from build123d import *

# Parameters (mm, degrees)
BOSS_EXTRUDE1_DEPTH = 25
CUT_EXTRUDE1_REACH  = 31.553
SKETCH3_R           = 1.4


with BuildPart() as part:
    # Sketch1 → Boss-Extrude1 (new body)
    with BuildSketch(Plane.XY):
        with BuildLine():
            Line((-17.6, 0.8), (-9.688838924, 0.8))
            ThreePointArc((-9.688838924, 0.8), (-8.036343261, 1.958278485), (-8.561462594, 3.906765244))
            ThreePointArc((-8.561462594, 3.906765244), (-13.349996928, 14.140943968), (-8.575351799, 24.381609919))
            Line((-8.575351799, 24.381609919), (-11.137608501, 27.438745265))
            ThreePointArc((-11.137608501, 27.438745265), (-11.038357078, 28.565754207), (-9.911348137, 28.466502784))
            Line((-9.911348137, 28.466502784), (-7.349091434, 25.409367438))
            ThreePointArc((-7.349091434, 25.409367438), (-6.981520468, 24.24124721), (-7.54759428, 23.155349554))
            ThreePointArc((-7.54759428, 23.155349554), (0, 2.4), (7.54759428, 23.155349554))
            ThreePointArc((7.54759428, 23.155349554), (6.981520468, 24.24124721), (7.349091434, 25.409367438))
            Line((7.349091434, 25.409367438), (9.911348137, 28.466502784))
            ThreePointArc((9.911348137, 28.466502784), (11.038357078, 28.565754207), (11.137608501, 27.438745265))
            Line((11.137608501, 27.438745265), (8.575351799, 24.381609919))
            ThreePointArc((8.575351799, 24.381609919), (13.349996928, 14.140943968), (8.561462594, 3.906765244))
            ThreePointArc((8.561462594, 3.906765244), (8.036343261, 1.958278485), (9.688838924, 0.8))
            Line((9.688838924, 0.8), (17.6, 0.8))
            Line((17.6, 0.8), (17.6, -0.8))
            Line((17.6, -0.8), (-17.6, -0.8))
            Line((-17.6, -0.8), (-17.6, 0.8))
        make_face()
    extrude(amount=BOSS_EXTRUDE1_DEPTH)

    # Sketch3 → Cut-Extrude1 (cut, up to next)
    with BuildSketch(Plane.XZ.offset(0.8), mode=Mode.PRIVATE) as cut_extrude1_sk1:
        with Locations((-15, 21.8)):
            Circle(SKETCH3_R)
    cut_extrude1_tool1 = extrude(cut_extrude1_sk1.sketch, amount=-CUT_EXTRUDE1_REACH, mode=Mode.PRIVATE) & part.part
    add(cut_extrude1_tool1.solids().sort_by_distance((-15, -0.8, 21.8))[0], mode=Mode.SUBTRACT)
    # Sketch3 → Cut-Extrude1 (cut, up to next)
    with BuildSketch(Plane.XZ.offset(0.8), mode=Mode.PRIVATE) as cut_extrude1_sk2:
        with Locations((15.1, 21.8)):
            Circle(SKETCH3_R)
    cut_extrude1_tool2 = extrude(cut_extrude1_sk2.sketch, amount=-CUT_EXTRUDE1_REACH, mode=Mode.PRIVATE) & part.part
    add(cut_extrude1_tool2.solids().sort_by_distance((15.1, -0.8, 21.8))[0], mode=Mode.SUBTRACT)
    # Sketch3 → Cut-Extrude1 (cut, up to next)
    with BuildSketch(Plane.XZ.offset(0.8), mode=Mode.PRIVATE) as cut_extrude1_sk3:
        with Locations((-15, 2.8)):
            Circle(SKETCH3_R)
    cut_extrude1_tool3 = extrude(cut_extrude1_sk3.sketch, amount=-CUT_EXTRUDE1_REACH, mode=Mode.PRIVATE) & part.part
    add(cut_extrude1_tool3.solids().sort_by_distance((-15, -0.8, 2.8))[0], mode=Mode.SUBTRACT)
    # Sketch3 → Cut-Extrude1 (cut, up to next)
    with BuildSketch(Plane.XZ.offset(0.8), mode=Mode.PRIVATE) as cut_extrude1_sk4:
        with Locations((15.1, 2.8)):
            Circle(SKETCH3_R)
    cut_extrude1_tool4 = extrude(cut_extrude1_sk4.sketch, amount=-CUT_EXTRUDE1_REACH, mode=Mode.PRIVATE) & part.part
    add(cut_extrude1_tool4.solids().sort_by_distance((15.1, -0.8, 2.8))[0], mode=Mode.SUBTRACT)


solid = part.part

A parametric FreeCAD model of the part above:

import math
import FreeCAD as App
import Part
import Sketcher

V = App.Vector
Q = App.Units.Quantity

doc = App.newDocument("Part")
body = doc.addObject("PartDesign::Body", "Body")

sketch1 = doc.addObject("Sketcher::SketchObject", "Sketch")
body.addObject(sketch1)
sketch1.AttachmentSupport = (doc.XY_Plane, [""])
sketch1.MapMode = "FlatFace"
sketch1.addGeometry(Part.LineSegment(V(-9.688839, 0.8, 0), V(-17.6, 0.8, 0)), False)
sketch1.addGeometry(Part.LineSegment(V(-17.6, 0.8, 0), V(-17.6, -0.8, 0)), False)
sketch1.addGeometry(Part.LineSegment(V(-17.6, -0.8, 0), V(17.6, -0.8, 0)), False)
sketch1.addGeometry(Part.LineSegment(V(17.6, -0.8, 0), V(17.6, 0.8, 0)), False)
sketch1.addGeometry(Part.LineSegment(V(17.6, 0.8, 0), V(9.688839, 0.8, 0)), False)
sketch1.addGeometry(Part.ArcOfCircle(Part.Circle(V(9.688839, 2.557933, 0), V(0, 0, 1), 1.757933), math.radians(129.889428), math.radians(270)), False)
sketch1.addGeometry(Part.ArcOfCircle(Part.Circle(V(0, 14.15, 0), V(0, 0, 1), 13.35), math.radians(-50.110573), math.radians(50.032839)), False)
sketch1.addGeometry(Part.LineSegment(V(8.575352, 24.38161, 0), V(11.137609, 27.438745, 0)), False)
sketch1.addGeometry(Part.ArcOfCircle(Part.Circle(V(10.524478, 27.952624, 0), V(0, 0, 1), 0.8), math.radians(-39.967161), math.radians(140.032839)), False)
sketch1.addGeometry(Part.LineSegment(V(9.911348, 28.466503, 0), V(7.349091, 25.409367, 0)), False)
sketch1.addGeometry(Part.ArcOfCircle(Part.Circle(V(8.575352, 24.38161, 0), V(0, 0, 1), 1.6), math.radians(140.032839), math.radians(230.032839)), False)
sketch1.addGeometry(Part.ArcOfCircle(Part.Circle(V(0, 14.15, 0), V(0, 0, 1), 11.75), math.radians(129.967161), math.radians(410.032839)), False)
sketch1.addGeometry(Part.ArcOfCircle(Part.Circle(V(-8.575352, 24.38161, 0), V(0, 0, 1), 1.6), math.radians(-50.032839), math.radians(39.967161)), False)
sketch1.addGeometry(Part.LineSegment(V(-7.349091, 25.409367, 0), V(-9.911348, 28.466503, 0)), False)
sketch1.addGeometry(Part.ArcOfCircle(Part.Circle(V(-10.524478, 27.952624, 0), V(0, 0, 1), 0.8), math.radians(39.967161), math.radians(219.967161)), False)
sketch1.addGeometry(Part.LineSegment(V(-11.137609, 27.438745, 0), V(-8.575352, 24.38161, 0)), False)
sketch1.addGeometry(Part.ArcOfCircle(Part.Circle(V(0, 14.15, 0), V(0, 0, 1), 13.35), math.radians(129.967161), math.radians(230.110573)), False)
sketch1.addGeometry(Part.ArcOfCircle(Part.Circle(V(-9.688839, 2.557933, 0), V(0, 0, 1), 1.757933), math.radians(-90), math.radians(50.110572)), False)
sketch1.addConstraint(Sketcher.Constraint("Coincident", 0, 2, 1, 1))
sketch1.addConstraint(Sketcher.Constraint("Coincident", 1, 2, 2, 1))
sketch1.addConstraint(Sketcher.Constraint("Coincident", 2, 2, 3, 1))
sketch1.addConstraint(Sketcher.Constraint("Coincident", 3, 2, 4, 1))
sketch1.addConstraint(Sketcher.Constraint("Tangent", 4, 2, 5, 2))
sketch1.addConstraint(Sketcher.Constraint("Tangent", 5, 1, 6, 1))
sketch1.addConstraint(Sketcher.Constraint("Coincident", 6, 2, 7, 1))
sketch1.addConstraint(Sketcher.Constraint("Tangent", 7, 2, 8, 1))
sketch1.addConstraint(Sketcher.Constraint("Tangent", 8, 2, 9, 1))
sketch1.addConstraint(Sketcher.Constraint("Tangent", 9, 2, 10, 1))
sketch1.addConstraint(Sketcher.Constraint("Tangent", 10, 2, 11, 2))
sketch1.addConstraint(Sketcher.Constraint("Tangent", 11, 1, 12, 1))
sketch1.addConstraint(Sketcher.Constraint("Tangent", 12, 2, 13, 1))
sketch1.addConstraint(Sketcher.Constraint("Tangent", 13, 2, 14, 1))
sketch1.addConstraint(Sketcher.Constraint("Tangent", 14, 2, 15, 1))
sketch1.addConstraint(Sketcher.Constraint("Coincident", 15, 2, 16, 1))
sketch1.addConstraint(Sketcher.Constraint("Tangent", 16, 2, 17, 2))
sketch1.addConstraint(Sketcher.Constraint("Tangent", 17, 1, 0, 1))
sketch1.addConstraint(Sketcher.Constraint("Horizontal", 0))
sketch1.addConstraint(Sketcher.Constraint("Vertical", 1))
sketch1.addConstraint(Sketcher.Constraint("Horizontal", 2))
sketch1.addConstraint(Sketcher.Constraint("Vertical", 3))
sketch1.addConstraint(Sketcher.Constraint("Horizontal", 4))
sketch1.addConstraint(Sketcher.Constraint("Coincident", 11, 3, 6, 3))
sketch1.addConstraint(Sketcher.Constraint("Coincident", 16, 3, 6, 3))
sketch1.addConstraint(Sketcher.Constraint("Coincident", 6, 2, 10, 3))
sketch1.addConstraint(Sketcher.Constraint("Coincident", 15, 2, 12, 3))
sketch1.addConstraint(Sketcher.Constraint("Equal", 10, 12))
sketch1.addConstraint(Sketcher.Constraint("Equal", 8, 14))
sketch1.addConstraint(Sketcher.Constraint("Equal", 5, 17))
sketch1.addConstraint(Sketcher.Constraint("Symmetric", 0, 2, 2, 2, -1, 1))
sketch1.addConstraint(Sketcher.Constraint("Symmetric", 10, 3, 12, 3, -2))
sketch1.addConstraint(Sketcher.Constraint("Symmetric", 8, 3, 14, 3, -2))
sketch1.addConstraint(Sketcher.Constraint("Parallel", 7, 9))
sketch1.addConstraint(Sketcher.Constraint("Horizontal", 5, 3, 17, 3))
sketch1.addConstraint(Sketcher.Constraint("Radius", 8, Q("0.8 mm")))
sketch1.addConstraint(Sketcher.Constraint("Radius", 6, Q("13.35 mm")))
sketch1.addConstraint(Sketcher.Constraint("DistanceX", 2, 1, 2, 2, Q("35.2 mm")))
sketch1.addConstraint(Sketcher.Constraint("DistanceY", 1, 2, 1, 1, Q("1.6 mm")))
sketch1.addConstraint(Sketcher.Constraint("DistanceY", -1, 1, 6, 3, Q("14.15 mm")))
sketch1.addConstraint(Sketcher.Constraint("Radius", 5, Q("1.757933 mm")))
sketch1.addConstraint(Sketcher.Constraint("Distance", 7, Q("3.988889 mm")))
sketch1.addConstraint(Sketcher.Constraint("DistanceX", -1, 1, 8, 3, Q("10.524478 mm")))
sketch1.addConstraint(Sketcher.Constraint("DistanceX", -1, 1, 10, 3, Q("8.575352 mm")))
pad1 = doc.addObject("PartDesign::Pad", "Pad")
body.addObject(pad1)
pad1.Profile = sketch1
pad1.Length = 25

sketch2 = doc.addObject("Sketcher::SketchObject", "Sketch001")
body.addObject(sketch2)
sketch2.AttachmentSupport = (doc.XZ_Plane, [""])
sketch2.MapMode = "FlatFace"
sketch2.AttachmentOffset = App.Placement(V(0, 0, 0.8), App.Rotation())
sketch2.addGeometry(Part.Circle(V(-15, 21.8, 0), V(0, 0, 1), 1.4), False)
sketch2.addConstraint(Sketcher.Constraint("Diameter", 0, Q("2.8 mm")))
sketch2.addConstraint(Sketcher.Constraint("DistanceX", 0, 3, -1, 1, Q("15 mm")))
sketch2.addConstraint(Sketcher.Constraint("DistanceY", -1, 1, 0, 3, Q("21.8 mm")))
pocket1 = doc.addObject("PartDesign::Pocket", "Pocket")
body.addObject(pocket1)
pocket1.Profile = sketch2
pocket1.Type = "UpToFirst"

sketch3 = doc.addObject("Sketcher::SketchObject", "Sketch002")
body.addObject(sketch3)
sketch3.AttachmentSupport = (doc.XZ_Plane, [""])
sketch3.MapMode = "FlatFace"
sketch3.AttachmentOffset = App.Placement(V(0, 0, 0.8), App.Rotation())
sketch3.addGeometry(Part.Circle(V(15.1, 21.8, 0), V(0, 0, 1), 1.4), False)
sketch3.addConstraint(Sketcher.Constraint("Diameter", 0, Q("2.8 mm")))
sketch3.addConstraint(Sketcher.Constraint("DistanceX", -1, 1, 0, 3, Q("15.1 mm")))
sketch3.addConstraint(Sketcher.Constraint("DistanceY", -1, 1, 0, 3, Q("21.8 mm")))
pocket2 = doc.addObject("PartDesign::Pocket", "Pocket001")
body.addObject(pocket2)
pocket2.Profile = sketch3
pocket2.Type = "UpToFirst"

sketch4 = doc.addObject("Sketcher::SketchObject", "Sketch003")
body.addObject(sketch4)
sketch4.AttachmentSupport = (doc.XZ_Plane, [""])
sketch4.MapMode = "FlatFace"
sketch4.AttachmentOffset = App.Placement(V(0, 0, 0.8), App.Rotation())
sketch4.addGeometry(Part.Circle(V(-15, 2.8, 0), V(0, 0, 1), 1.4), False)
sketch4.addConstraint(Sketcher.Constraint("Diameter", 0, Q("2.8 mm")))
sketch4.addConstraint(Sketcher.Constraint("DistanceX", 0, 3, -1, 1, Q("15 mm")))
sketch4.addConstraint(Sketcher.Constraint("DistanceY", -1, 1, 0, 3, Q("2.8 mm")))
pocket3 = doc.addObject("PartDesign::Pocket", "Pocket002")
body.addObject(pocket3)
pocket3.Profile = sketch4
pocket3.Type = "UpToFirst"

sketch5 = doc.addObject("Sketcher::SketchObject", "Sketch004")
body.addObject(sketch5)
sketch5.AttachmentSupport = (doc.XZ_Plane, [""])
sketch5.MapMode = "FlatFace"
sketch5.AttachmentOffset = App.Placement(V(0, 0, 0.8), App.Rotation())
sketch5.addGeometry(Part.Circle(V(15.1, 2.8, 0), V(0, 0, 1), 1.4), False)
sketch5.addConstraint(Sketcher.Constraint("Diameter", 0, Q("2.8 mm")))
sketch5.addConstraint(Sketcher.Constraint("DistanceX", -1, 1, 0, 3, Q("15.1 mm")))
sketch5.addConstraint(Sketcher.Constraint("DistanceY", -1, 1, 0, 3, Q("2.8 mm")))
pocket4 = doc.addObject("PartDesign::Pocket", "Pocket003")
body.addObject(pocket4)
pocket4.Profile = sketch5
pocket4.Type = "UpToFirst"

doc.recompute()
